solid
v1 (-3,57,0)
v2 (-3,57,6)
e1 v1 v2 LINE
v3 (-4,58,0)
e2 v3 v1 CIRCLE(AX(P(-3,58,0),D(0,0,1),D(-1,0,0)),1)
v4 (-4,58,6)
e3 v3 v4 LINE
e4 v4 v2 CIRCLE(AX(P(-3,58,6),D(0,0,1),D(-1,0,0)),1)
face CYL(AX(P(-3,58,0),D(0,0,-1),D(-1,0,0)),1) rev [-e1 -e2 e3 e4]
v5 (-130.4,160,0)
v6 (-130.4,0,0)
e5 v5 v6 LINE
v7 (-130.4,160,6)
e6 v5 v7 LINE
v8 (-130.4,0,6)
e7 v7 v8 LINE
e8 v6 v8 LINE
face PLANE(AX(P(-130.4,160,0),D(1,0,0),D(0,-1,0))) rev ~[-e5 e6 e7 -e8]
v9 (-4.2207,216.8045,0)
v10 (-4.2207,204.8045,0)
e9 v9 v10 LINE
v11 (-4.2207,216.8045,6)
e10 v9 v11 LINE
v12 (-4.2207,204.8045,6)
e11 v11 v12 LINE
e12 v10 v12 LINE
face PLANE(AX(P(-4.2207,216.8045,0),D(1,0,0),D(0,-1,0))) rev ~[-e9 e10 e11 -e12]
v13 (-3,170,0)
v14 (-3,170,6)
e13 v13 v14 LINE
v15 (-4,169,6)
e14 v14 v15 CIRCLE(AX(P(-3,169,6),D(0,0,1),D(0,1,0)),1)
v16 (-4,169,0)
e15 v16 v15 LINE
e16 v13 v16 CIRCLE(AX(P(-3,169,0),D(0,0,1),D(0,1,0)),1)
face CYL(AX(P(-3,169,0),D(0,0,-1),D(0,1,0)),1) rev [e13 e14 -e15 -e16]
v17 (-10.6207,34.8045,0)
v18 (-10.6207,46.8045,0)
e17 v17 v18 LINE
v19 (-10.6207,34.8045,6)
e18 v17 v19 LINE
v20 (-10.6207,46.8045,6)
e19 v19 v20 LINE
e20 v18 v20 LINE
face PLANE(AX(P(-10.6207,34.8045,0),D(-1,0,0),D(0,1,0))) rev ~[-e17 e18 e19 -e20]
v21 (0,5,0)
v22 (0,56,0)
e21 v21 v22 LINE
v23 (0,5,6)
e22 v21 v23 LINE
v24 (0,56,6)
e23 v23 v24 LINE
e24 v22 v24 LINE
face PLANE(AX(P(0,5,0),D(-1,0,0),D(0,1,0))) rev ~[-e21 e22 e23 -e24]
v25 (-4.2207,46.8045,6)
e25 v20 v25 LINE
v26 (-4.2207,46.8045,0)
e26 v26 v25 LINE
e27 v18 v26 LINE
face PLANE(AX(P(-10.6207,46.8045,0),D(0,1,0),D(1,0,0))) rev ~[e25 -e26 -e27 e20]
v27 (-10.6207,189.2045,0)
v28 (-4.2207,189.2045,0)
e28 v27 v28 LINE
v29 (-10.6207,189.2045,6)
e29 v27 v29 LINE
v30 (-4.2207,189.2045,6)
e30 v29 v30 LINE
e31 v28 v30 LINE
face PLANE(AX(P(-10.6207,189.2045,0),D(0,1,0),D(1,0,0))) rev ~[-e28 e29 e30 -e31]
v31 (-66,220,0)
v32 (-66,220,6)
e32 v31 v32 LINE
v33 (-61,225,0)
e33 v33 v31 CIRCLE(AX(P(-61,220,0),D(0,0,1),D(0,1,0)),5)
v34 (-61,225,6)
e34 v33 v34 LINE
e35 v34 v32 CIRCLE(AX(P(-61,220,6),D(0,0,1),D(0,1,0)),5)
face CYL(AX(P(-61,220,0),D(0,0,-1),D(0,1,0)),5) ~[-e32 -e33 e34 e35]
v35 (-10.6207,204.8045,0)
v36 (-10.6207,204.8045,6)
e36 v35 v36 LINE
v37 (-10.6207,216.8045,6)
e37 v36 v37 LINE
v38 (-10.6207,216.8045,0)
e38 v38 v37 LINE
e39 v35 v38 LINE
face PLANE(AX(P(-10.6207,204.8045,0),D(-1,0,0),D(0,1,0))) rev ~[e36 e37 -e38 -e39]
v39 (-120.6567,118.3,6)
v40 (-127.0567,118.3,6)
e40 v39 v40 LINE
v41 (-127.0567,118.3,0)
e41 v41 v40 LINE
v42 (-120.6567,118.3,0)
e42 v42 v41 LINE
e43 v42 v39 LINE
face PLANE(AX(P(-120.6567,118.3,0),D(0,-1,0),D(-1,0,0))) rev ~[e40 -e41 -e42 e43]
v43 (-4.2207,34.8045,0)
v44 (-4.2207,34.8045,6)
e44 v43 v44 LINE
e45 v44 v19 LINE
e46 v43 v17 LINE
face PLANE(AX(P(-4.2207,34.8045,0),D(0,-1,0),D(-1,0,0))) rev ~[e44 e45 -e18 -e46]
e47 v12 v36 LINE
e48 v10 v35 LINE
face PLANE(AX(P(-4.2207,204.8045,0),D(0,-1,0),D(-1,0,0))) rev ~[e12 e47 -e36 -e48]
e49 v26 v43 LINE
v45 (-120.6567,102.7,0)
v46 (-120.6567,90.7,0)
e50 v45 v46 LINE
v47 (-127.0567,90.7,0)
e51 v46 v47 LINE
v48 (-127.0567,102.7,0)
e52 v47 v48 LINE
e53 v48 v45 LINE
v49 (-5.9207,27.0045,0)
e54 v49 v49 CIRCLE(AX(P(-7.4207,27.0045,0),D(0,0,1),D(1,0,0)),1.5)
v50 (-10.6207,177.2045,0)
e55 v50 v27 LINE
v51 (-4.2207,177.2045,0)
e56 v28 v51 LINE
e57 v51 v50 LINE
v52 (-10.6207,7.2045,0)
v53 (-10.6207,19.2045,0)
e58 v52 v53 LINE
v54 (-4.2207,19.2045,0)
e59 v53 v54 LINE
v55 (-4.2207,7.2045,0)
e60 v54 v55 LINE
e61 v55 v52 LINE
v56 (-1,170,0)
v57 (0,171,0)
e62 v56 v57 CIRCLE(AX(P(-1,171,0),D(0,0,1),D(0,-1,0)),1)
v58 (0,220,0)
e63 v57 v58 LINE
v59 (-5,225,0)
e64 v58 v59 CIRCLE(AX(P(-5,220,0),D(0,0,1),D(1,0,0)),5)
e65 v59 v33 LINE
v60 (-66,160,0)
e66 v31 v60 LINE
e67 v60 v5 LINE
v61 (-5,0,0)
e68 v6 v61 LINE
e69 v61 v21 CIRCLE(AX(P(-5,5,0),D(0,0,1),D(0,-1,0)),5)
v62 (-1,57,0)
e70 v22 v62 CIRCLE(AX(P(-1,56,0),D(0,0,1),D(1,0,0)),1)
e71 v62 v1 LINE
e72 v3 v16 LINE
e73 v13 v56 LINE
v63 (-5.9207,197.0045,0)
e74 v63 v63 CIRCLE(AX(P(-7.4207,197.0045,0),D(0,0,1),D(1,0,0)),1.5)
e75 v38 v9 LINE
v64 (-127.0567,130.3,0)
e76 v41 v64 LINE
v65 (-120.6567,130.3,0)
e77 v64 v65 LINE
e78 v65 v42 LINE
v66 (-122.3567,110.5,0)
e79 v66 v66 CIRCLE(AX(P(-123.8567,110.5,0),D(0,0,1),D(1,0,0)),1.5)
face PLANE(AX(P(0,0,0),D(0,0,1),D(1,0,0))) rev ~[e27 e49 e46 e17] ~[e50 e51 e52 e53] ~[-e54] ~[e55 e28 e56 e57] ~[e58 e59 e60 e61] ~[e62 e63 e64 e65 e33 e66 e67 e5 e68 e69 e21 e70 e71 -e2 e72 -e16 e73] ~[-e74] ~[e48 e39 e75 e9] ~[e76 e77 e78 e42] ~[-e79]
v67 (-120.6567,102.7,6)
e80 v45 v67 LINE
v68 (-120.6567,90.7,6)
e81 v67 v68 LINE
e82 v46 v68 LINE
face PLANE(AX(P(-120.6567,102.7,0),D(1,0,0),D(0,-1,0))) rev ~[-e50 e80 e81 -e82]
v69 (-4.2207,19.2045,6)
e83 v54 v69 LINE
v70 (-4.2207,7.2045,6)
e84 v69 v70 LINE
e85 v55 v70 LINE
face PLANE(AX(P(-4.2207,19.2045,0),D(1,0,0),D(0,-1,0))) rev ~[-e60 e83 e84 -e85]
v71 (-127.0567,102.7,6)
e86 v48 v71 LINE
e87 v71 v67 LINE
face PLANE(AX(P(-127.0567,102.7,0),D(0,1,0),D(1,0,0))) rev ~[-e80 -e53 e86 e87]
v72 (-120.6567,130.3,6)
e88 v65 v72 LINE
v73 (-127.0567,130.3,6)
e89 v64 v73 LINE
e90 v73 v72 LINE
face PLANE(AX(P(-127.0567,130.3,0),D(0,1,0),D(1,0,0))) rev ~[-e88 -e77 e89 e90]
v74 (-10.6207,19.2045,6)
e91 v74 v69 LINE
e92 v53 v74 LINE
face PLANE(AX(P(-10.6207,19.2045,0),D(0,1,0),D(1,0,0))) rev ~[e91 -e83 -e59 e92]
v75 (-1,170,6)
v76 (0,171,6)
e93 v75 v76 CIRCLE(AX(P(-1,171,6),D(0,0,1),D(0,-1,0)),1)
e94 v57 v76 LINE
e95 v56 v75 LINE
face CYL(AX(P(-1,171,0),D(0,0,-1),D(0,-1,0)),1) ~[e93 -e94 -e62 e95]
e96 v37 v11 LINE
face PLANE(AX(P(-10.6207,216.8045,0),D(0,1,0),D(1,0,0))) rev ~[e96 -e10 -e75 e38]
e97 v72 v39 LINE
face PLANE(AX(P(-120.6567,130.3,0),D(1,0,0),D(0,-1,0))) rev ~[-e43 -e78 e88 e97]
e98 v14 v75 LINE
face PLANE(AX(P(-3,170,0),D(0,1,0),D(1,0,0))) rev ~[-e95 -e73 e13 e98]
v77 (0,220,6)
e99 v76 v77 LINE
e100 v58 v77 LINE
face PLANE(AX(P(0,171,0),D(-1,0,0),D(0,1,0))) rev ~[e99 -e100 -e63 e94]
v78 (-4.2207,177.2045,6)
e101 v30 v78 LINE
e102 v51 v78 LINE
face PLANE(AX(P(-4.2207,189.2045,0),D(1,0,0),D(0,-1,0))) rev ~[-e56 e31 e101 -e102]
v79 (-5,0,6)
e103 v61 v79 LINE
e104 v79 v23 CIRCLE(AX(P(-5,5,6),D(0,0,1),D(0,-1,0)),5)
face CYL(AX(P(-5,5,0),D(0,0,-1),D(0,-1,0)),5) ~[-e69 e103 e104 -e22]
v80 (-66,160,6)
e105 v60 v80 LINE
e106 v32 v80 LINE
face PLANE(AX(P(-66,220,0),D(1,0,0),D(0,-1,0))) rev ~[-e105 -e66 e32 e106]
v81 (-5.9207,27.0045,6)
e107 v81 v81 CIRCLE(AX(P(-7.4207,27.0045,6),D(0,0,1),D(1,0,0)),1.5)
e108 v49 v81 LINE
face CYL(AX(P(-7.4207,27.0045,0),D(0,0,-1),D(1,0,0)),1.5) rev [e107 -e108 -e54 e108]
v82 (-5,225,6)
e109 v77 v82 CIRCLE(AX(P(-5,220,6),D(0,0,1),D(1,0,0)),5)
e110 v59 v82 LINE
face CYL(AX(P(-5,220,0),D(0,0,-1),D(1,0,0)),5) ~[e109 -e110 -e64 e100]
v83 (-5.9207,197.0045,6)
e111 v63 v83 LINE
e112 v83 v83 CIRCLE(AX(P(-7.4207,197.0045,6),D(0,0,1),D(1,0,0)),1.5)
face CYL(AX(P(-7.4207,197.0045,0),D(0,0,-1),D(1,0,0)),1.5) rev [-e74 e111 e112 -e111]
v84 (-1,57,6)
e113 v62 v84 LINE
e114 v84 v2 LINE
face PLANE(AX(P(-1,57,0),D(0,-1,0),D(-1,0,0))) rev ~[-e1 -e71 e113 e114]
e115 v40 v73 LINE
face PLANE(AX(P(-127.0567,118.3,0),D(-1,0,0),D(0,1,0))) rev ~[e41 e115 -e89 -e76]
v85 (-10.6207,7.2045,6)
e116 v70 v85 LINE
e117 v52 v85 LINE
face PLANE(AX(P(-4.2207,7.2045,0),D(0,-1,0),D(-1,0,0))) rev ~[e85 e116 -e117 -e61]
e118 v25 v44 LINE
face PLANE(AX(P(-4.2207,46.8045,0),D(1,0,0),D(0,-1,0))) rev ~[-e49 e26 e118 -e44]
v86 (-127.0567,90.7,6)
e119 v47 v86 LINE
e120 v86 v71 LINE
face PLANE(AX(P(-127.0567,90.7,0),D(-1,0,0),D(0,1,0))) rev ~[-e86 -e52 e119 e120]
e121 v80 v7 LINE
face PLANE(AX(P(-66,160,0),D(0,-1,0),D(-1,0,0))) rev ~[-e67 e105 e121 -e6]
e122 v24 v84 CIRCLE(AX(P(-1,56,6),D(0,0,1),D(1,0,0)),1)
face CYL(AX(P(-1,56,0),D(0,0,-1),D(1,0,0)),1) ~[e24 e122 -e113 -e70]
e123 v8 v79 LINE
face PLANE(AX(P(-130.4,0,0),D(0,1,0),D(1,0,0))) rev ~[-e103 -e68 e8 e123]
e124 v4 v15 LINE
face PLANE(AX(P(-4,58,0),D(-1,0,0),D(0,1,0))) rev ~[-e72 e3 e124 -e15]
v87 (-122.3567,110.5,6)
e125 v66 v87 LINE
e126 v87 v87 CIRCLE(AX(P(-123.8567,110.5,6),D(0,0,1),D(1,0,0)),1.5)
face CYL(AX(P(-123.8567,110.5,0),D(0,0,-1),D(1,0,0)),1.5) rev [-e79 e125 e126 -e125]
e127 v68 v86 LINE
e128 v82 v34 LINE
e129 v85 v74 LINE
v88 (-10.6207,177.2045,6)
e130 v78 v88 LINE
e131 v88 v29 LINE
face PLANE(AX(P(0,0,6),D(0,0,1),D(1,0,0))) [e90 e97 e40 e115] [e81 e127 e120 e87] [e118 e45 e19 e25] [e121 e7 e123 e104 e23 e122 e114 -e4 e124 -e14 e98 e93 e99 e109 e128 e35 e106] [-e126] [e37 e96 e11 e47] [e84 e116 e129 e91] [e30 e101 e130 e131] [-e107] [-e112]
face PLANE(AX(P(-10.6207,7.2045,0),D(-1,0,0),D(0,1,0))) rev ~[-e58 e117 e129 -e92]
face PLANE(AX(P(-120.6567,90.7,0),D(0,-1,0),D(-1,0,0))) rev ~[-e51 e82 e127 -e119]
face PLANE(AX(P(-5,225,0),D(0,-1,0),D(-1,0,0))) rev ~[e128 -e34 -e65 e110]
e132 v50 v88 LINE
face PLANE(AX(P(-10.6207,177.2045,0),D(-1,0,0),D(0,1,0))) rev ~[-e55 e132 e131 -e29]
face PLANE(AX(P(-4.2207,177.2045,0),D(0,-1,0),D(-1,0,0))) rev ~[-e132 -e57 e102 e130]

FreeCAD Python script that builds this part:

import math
import FreeCAD as App
import Part
import Sketcher

V = App.Vector


def add_polygon(sketch, points):
    """Adds a closed chain of lines whose ends are joined by coincident constraints."""
    first, n = sketch.GeometryCount, len(points)
    for a, b in zip(points, points[1:] + points[:1]):
        sketch.addGeometry(Part.LineSegment(App.Vector(*a, 0), App.Vector(*b, 0)), False)
    for i in range(n):
        sketch.addConstraint(Sketcher.Constraint("Coincident", first + i, 2, first + (i + 1) % n, 1))

doc = App.newDocument("Part")
params = doc.addObject("Spreadsheet::Sheet", "Params")
for row, (alias, value) in enumerate([
    ("sketch1_diameter", "3 mm"),
    ("sketch1_radius", "5 mm"),
    ("sketch1_radius2", "1 mm"),
    ("sketch1_width", "2 mm"),
    ("sketch1_width2", "56 mm"),
    ("pad1_length", "6 mm"),
], start=1):
    params.set(f"A{row}", alias)
    params.set(f"B{row}", "=" + value)
    params.setAlias(f"B{row}", alias)

body = doc.addObject("PartDesign::Body", "Body")

# Sketch on XY plane
sketch1 = body.newObject("Sketcher::SketchObject", "Sketch")
sketch1.AttachmentSupport = (doc.getObject("XY_Plane"), [""])
sketch1.MapMode = "FlatFace"
sketch1.addGeometry(Part.LineSegment(V(-66, 220, 0), V(-66, 160, 0)), False)  # 0
sketch1.addGeometry(Part.LineSegment(V(-66, 160, 0), V(-130.4, 160, 0)), False)  # 1
sketch1.addGeometry(Part.LineSegment(V(-130.4, 160, 0), V(-130.4, 0, 0)), False)  # 2
sketch1.addGeometry(Part.LineSegment(V(-130.4, 0, 0), V(-5, 0, 0)), False)  # 3
sketch1.addGeometry(Part.ArcOfCircle(Part.Circle(V(-5, 5, 0), V(0, 0, 1), 5), math.radians(-90), math.radians(0)), False)  # 4
sketch1.addGeometry(Part.LineSegment(V(0, 5, 0), V(0, 56, 0)), False)  # 5
sketch1.addGeometry(Part.ArcOfCircle(Part.Circle(V(-1, 56, 0), V(0, 0, 1), 1), math.radians(0), math.radians(90)), False)  # 6
sketch1.addGeometry(Part.LineSegment(V(-1, 57, 0), V(-3, 57, 0)), False)  # 7
sketch1.addGeometry(Part.ArcOfCircle(Part.Circle(V(-3, 58, 0), V(0, 0, 1), 1), math.radians(180), math.radians(270)), False)  # 8
sketch1.addGeometry(Part.LineSegment(V(-4, 58, 0), V(-4, 169, 0)), False)  # 9
sketch1.addGeometry(Part.ArcOfCircle(Part.Circle(V(-3, 169, 0), V(0, 0, 1), 1), math.radians(90), math.radians(180)), False)  # 10
sketch1.addGeometry(Part.LineSegment(V(-3, 170, 0), V(-1, 170, 0)), False)  # 11
sketch1.addGeometry(Part.ArcOfCircle(Part.Circle(V(-1, 171, 0), V(0, 0, 1), 1), math.radians(-90), math.radians(0)), False)  # 12
sketch1.addGeometry(Part.LineSegment(V(0, 171, 0), V(0, 220, 0)), False)  # 13
sketch1.addGeometry(Part.ArcOfCircle(Part.Circle(V(-5, 220, 0), V(0, 0, 1), 5), math.radians(0), math.radians(90)), False)  # 14
sketch1.addGeometry(Part.LineSegment(V(-5, 225, 0), V(-61, 225, 0)), False)  # 15
sketch1.addGeometry(Part.ArcOfCircle(Part.Circle(V(-61, 220, 0), V(0, 0, 1), 5), math.radians(90), math.radians(180)), False)  # 16
add_polygon(sketch1, [(-120.7, 102.7), (-120.7, 90.7), (-127.1, 90.7), (-127.1, 102.7)])  # lines 17-20
sketch1.addGeometry(Part.Circle(V(-123.9, 110.5, 0), V(0, 0, 1), 1.5), False)  # 21
add_polygon(sketch1, [(-4.2, 19.2), (-4.2, 7.2), (-10.6, 7.2), (-10.6, 19.2)])  # lines 22-25
sketch1.addGeometry(Part.Circle(V(-7.4, 27, 0), V(0, 0, 1), 1.5), False)  # 26
add_polygon(sketch1, [(-4.2, 46.8), (-4.2, 34.8), (-10.6, 34.8), (-10.6, 46.8)])  # lines 27-30
add_polygon(sketch1, [(-120.7, 130.3), (-120.7, 118.3), (-127.1, 118.3), (-127.1, 130.3)])  # lines 31-34
add_polygon(sketch1, [(-4.2, 189.2), (-4.2, 177.2), (-10.6, 177.2), (-10.6, 189.2)])  # lines 35-38
sketch1.addGeometry(Part.Circle(V(-7.4, 197, 0), V(0, 0, 1), 1.5), False)  # 39
add_polygon(sketch1, [(-4.2, 216.8), (-4.2, 204.8), (-10.6, 204.8), (-10.6, 216.8)])  # lines 40-43
sketch1.addConstraint([
    Sketcher.Constraint("Coincident", 0, 2, 1, 1),
    Sketcher.Constraint("Coincident", 1, 2, 2, 1),
    Sketcher.Constraint("Coincident", 2, 2, 3, 1),
    Sketcher.Constraint("Tangent", 3, 2, 4, 1),
    Sketcher.Constraint("Tangent", 4, 2, 5, 1),
    Sketcher.Constraint("Tangent", 5, 2, 6, 1),
    Sketcher.Constraint("Tangent", 6, 2, 7, 1),
    Sketcher.Constraint("Tangent", 7, 2, 8, 2),
    Sketcher.Constraint("Tangent", 8, 1, 9, 1),
    Sketcher.Constraint("Tangent", 9, 2, 10, 2),
    Sketcher.Constraint("Tangent", 10, 1, 11, 1),
    Sketcher.Constraint("Tangent", 11, 2, 12, 1),
    Sketcher.Constraint("Tangent", 12, 2, 13, 1),
    Sketcher.Constraint("Tangent", 13, 2, 14, 1),
    Sketcher.Constraint("Tangent", 14, 2, 15, 1),
    Sketcher.Constraint("Tangent", 15, 2, 16, 1),
    Sketcher.Constraint("Tangent", 16, 2, 0, 1),
    Sketcher.Constraint("Vertical", 0),
    Sketcher.Constraint("Horizontal", 1),
    Sketcher.Constraint("Vertical", 2),
    Sketcher.Constraint("Horizontal", 3),
    Sketcher.Constraint("Vertical", 5),
    Sketcher.Constraint("Horizontal", 7),
    Sketcher.Constraint("Vertical", 9),
    Sketcher.Constraint("Horizontal", 11),
    Sketcher.Constraint("Vertical", 13),
    Sketcher.Constraint("Horizontal", 15),
    Sketcher.Constraint("Vertical", 17),
    Sketcher.Constraint("Horizontal", 18),
    Sketcher.Constraint("Vertical", 19),
    Sketcher.Constraint("Horizontal", 20),
    Sketcher.Constraint("Vertical", 22),
    Sketcher.Constraint("Horizontal", 23),
    Sketcher.Constraint("Vertical", 24),
    Sketcher.Constraint("Horizontal", 25),
    Sketcher.Constraint("Vertical", 27),
    Sketcher.Constraint("Horizontal", 28),
    Sketcher.Constraint("Vertical", 29),
    Sketcher.Constraint("Horizontal", 30),
    Sketcher.Constraint("Vertical", 31),
    Sketcher.Constraint("Horizontal", 32),
    Sketcher.Constraint("Vertical", 33),
    Sketcher.Constraint("Horizontal", 34),
    Sketcher.Constraint("Vertical", 35),
    Sketcher.Constraint("Horizontal", 36),
    Sketcher.Constraint("Vertical", 37),
    Sketcher.Constraint("Horizontal", 38),
    Sketcher.Constraint("Vertical", 40),
    Sketcher.Constraint("Horizontal", 41),
    Sketcher.Constraint("Vertical", 42),
    Sketcher.Constraint("Horizontal", 43),
    Sketcher.Constraint("Equal", 6, 8),
    Sketcher.Constraint("Equal", 8, 10),
    Sketcher.Constraint("Equal", 10, 12),
    Sketcher.Constraint("Equal", 4, 14),
    Sketcher.Constraint("Equal", 14, 16),
    Sketcher.Constraint("Equal", 21, 26),
    Sketcher.Constraint("Equal", 26, 39),
    Sketcher.Constraint("PointOnObject", 2, 2, -1),
    Sketcher.Constraint("PointOnObject", 4, 2, -2),
    Sketcher.Constraint("PointOnObject", 12, 2, -2),
    Sketcher.Constraint("Vertical", 26, 3, 39, 3),
    Sketcher.Constraint("Vertical", 25, 2, 27, 2),
    Sketcher.Constraint("Vertical", 24, 2, 28, 2),
    Sketcher.Constraint("Vertical", 20, 2, 31, 2),
    Sketcher.Constraint("Vertical", 19, 2, 32, 2),
    Sketcher.Constraint("Vertical", 30, 2, 35, 2),
    Sketcher.Constraint("Vertical", 29, 2, 36, 2),
    Sketcher.Constraint("Vertical", 38, 2, 40, 2),
    Sketcher.Constraint("Vertical", 37, 2, 41, 2),
    Sketcher.Constraint("Equal", 20, 23),
    Sketcher.Constraint("Equal", 19, 22),
    Sketcher.Constraint("Equal", 24, 27),
    Sketcher.Constraint("Equal", 29, 31),
    Sketcher.Constraint("Equal", 33, 35),
    Sketcher.Constraint("Equal", 37, 40),
    Sketcher.Constraint("Diameter", 21, 3.0),
    Sketcher.Constraint("Radius", 4, 5.0),
    Sketcher.Constraint("Radius", 6, 1.0),
    Sketcher.Constraint("DistanceX", 7, 2, 7, 1, 2.0),
    Sketcher.Constraint("DistanceX", 15, 2, 15, 1, 56.0),
    Sketcher.Constraint("DistanceY", 0, 2, 0, 1, 60.0),
    Sketcher.Constraint("DistanceY", 2, 2, 2, 1, 160.0),
    Sketcher.Constraint("DistanceY", 5, 1, 5, 2, 51.0),
    Sketcher.Constraint("DistanceY", 9, 1, 9, 2, 111.0),
    Sketcher.Constraint("DistanceY", 17, 2, 17, 1, 12.0),
    Sketcher.Constraint("DistanceX", 1, 2, 1, 1, 64.4),
    Sketcher.Constraint("DistanceX", 18, 2, 18, 1, 6.4),
    Sketcher.Constraint("DistanceY", -1, 1, 21, 3, 110.5),
    Sketcher.Constraint("DistanceY", -1, 1, 17, 2, 90.7),
    Sketcher.Constraint("DistanceY", -1, 1, 31, 2, 118.3),
    Sketcher.Constraint("DistanceX", 21, 3, 17, 2, 3.2),
    Sketcher.Constraint("DistanceX", 26, 3, 22, 2, 3.2),
    Sketcher.Constraint("DistanceY", 22, 2, 26, 3, 19.8),
    Sketcher.Constraint("DistanceY", 26, 3, 27, 2, 7.8),
    Sketcher.Constraint("DistanceY", 37, 2, 39, 3, 7.8),
    Sketcher.Constraint("DistanceY", 39, 3, 40, 2, 7.8),
    Sketcher.Constraint("DistanceX", 21, 3, 26, 3, 116.436),
    Sketcher.Constraint("DistanceX", 21, 3, -1, 1, 123.8567),
    Sketcher.Constraint("DistanceY", -1, 1, 26, 3, 27.0045),
    Sketcher.Constraint("DistanceY", -1, 1, 39, 3, 197.0045),
])
sketch1.setExpression("Constraints[100]", "Params.sketch1_diameter")
sketch1.setExpression("Constraints[101]", "Params.sketch1_radius")
sketch1.setExpression("Constraints[102]", "Params.sketch1_radius2")
sketch1.setExpression("Constraints[103]", "Params.sketch1_width")
sketch1.setExpression("Constraints[104]", "Params.sketch1_width2")
pad1 = body.newObject("PartDesign::Pad", "Pad")
pad1.Profile = sketch1
pad1.setExpression("Length", "Params.pad1_length")

doc.recompute()
